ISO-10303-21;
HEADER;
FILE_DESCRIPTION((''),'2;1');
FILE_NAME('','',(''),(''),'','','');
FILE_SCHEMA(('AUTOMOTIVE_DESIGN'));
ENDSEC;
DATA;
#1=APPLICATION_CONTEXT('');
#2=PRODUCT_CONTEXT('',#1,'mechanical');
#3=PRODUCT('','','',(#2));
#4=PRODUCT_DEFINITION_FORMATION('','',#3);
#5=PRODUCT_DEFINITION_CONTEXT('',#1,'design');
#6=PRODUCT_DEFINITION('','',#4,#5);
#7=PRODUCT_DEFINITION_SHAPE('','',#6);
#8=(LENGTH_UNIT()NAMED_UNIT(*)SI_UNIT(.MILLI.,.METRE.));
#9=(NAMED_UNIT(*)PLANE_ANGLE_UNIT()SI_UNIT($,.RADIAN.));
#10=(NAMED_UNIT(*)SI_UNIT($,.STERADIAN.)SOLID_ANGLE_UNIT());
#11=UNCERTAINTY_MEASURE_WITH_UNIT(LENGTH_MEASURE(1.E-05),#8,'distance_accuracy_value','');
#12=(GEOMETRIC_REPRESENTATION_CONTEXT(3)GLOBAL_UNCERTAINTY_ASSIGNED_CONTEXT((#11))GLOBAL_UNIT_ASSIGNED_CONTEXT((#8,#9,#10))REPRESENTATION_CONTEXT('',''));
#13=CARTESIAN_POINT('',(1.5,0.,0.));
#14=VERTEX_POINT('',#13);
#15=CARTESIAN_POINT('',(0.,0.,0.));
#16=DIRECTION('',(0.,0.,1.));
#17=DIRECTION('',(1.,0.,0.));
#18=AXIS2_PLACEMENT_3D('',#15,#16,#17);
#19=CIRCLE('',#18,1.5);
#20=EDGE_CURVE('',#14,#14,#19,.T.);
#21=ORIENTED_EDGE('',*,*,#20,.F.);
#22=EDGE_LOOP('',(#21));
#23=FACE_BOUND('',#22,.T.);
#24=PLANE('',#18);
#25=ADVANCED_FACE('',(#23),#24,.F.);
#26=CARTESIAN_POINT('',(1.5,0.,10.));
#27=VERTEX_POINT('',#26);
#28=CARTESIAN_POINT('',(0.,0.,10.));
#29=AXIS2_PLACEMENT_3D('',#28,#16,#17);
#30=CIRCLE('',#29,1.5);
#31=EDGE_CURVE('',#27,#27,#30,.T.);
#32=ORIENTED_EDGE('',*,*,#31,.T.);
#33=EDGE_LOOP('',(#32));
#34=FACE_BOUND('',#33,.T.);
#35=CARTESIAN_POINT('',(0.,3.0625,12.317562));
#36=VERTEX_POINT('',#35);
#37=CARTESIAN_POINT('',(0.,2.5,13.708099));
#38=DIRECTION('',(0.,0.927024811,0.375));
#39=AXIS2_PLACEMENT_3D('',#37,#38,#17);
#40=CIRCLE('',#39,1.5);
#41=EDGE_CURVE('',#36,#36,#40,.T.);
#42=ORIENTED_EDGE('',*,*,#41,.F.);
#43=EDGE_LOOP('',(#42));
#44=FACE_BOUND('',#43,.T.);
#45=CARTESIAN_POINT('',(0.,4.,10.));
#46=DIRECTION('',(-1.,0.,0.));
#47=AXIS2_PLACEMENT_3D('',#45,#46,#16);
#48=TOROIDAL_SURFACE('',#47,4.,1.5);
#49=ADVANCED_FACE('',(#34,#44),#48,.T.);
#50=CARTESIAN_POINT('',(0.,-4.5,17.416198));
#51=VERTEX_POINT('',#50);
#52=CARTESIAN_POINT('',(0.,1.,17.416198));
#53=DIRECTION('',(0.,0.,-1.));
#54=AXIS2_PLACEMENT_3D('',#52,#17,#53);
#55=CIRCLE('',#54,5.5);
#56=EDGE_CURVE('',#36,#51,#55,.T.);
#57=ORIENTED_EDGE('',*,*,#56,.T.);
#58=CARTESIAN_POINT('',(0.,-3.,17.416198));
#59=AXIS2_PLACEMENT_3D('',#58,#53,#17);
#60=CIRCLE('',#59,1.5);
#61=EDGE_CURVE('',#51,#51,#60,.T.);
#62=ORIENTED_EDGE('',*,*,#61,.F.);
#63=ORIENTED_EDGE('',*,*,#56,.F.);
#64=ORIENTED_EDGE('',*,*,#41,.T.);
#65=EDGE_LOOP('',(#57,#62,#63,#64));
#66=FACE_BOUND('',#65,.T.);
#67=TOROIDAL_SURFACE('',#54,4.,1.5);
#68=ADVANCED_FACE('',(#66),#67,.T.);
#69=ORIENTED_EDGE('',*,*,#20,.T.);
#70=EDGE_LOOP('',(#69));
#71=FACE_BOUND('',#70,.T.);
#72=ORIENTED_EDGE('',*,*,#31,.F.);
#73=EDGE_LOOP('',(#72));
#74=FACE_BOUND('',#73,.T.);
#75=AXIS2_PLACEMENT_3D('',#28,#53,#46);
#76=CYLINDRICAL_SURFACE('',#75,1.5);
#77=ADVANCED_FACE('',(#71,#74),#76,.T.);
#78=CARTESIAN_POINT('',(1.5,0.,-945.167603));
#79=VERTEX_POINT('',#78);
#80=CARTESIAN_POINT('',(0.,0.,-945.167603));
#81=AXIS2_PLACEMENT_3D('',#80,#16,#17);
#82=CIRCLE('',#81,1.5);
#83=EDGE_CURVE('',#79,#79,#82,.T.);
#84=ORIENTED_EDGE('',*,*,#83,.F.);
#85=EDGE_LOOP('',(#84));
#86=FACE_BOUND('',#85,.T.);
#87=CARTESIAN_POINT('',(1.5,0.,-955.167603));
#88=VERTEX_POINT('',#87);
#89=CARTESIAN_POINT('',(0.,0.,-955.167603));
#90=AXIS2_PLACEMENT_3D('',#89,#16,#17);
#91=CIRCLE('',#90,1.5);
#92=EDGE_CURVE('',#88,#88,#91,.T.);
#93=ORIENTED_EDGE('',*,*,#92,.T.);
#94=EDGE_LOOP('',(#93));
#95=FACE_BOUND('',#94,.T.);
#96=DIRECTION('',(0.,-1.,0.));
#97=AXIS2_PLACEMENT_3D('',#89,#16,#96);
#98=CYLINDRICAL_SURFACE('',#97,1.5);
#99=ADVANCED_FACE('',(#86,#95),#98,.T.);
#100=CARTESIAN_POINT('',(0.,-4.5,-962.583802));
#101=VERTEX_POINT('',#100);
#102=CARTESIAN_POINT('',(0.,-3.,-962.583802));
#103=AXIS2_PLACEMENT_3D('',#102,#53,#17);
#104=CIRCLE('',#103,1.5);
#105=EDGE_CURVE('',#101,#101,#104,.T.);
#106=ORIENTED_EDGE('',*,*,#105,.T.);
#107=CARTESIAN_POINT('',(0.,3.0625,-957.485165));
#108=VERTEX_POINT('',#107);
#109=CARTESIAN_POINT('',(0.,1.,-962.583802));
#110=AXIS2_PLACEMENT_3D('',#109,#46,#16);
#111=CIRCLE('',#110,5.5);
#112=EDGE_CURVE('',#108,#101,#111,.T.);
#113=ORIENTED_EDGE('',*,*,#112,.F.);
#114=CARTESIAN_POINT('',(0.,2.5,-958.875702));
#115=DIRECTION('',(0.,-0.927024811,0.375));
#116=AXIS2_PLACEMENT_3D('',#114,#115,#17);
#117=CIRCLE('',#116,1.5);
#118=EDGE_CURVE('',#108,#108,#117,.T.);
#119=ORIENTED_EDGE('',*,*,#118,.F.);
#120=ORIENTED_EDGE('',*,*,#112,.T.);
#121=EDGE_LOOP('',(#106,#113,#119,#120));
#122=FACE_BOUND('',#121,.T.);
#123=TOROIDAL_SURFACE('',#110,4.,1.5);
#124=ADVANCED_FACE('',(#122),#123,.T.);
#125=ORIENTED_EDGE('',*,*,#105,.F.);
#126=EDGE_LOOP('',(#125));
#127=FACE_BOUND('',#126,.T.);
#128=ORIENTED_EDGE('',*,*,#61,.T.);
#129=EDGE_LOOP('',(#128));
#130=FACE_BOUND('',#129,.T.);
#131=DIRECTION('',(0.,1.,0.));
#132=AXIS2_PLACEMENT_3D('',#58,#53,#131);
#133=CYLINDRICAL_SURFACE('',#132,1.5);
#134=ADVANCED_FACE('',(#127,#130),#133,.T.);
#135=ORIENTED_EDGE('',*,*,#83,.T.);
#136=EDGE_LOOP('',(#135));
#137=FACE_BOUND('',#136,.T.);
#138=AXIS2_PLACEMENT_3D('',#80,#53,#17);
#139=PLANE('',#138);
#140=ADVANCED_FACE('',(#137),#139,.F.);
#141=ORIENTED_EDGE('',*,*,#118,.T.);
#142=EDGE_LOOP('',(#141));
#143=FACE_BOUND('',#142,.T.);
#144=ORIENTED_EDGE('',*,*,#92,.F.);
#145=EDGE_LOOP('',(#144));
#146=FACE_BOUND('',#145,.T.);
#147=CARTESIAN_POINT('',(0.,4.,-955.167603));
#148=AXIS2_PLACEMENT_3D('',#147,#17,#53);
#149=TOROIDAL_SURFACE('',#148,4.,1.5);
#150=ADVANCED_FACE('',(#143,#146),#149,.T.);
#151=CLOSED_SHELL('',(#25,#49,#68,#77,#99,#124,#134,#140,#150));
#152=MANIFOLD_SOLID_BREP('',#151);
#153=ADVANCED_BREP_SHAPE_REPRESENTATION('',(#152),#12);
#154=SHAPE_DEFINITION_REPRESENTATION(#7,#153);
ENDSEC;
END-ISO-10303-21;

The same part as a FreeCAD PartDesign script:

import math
import FreeCAD as App
import Part
import Sketcher

V = App.Vector
Q = App.Units.Quantity

doc = App.newDocument("Part")
body = doc.addObject("PartDesign::Body", "Body")

# Sketch on XY plane
sketch1 = body.newObject("Sketcher::SketchObject", "Sketch")
sketch1.AttachmentSupport = (doc.getObject("XY_Plane"), [""])
sketch1.MapMode = "FlatFace"
sketch1.addGeometry(Part.Circle(V(0, 0, 0), V(0, 0, 1), 1.5), False)
sketch1.addConstraint(Sketcher.Constraint("Coincident", 0, 3, -1, 1))
sketch1.addConstraint(Sketcher.Constraint("Diameter", 0, Q("3 mm")))

# Sketch on YZ plane
sketch2 = body.newObject("Sketcher::SketchObject", "Sketch001")
sketch2.AttachmentSupport = (doc.getObject("YZ_Plane"), [""])
sketch2.MapMode = "FlatFace"
sketch2.addGeometry(Part.LineSegment(V(-3, -472.6, 0), V(-3, 17.4, 0)), False)
sketch2.addGeometry(Part.ArcOfCircle(Part.Circle(V(1, 17.4, 0), V(0, 0, 1), 4), math.radians(-68), math.radians(180)), False)
sketch2.addGeometry(Part.ArcOfCircle(Part.Circle(V(4, 10, 0), V(0, 0, 1), 4), math.radians(112), math.radians(180)), False)
sketch2.addGeometry(Part.LineSegment(V(0, 10, 0), V(0, 0, 0)), False)
sketch2.addConstraint(Sketcher.Constraint("Tangent", 0, 2, 1, 2))
sketch2.addConstraint(Sketcher.Constraint("Tangent", 1, 1, 2, 1))
sketch2.addConstraint(Sketcher.Constraint("Tangent", 2, 2, 3, 1))
sketch2.addConstraint(Sketcher.Constraint("Vertical", 0))
sketch2.addConstraint(Sketcher.Constraint("Vertical", 3))
sketch2.addConstraint(Sketcher.Constraint("Coincident", 3, 2, -1, 1))
sketch2.addConstraint(Sketcher.Constraint("Equal", 1, 2))
sketch2.addConstraint(Sketcher.Constraint("Radius", 1, Q("4 mm")))
sketch2.addConstraint(Sketcher.Constraint("DistanceY", 0, 1, 0, 2, Q("490 mm")))
sketch2.addConstraint(Sketcher.Constraint("DistanceY", 3, 2, 3, 1, Q("10 mm")))
sketch2.addConstraint(Sketcher.Constraint("DistanceX", -1, 1, 1, 3, Q("1 mm")))
doc.recompute()

additivepipe = body.newObject("PartDesign::AdditivePipe", "AdditivePipe")
additivepipe.Profile = sketch1
additivepipe.Spine = (sketch2, ["Edge1", "Edge2", "Edge3", "Edge4"])
doc.recompute()

datumplane = body.newObject("PartDesign::Plane", "DatumPlane")
datumplane.AttachmentSupport = (doc.getObject("XY_Plane"), [""])
datumplane.MapMode = "FlatFace"
datumplane.AttachmentOffset = App.Placement(V(0, 0, -472.583802), App.Rotation())
mirrored = body.newObject("PartDesign::Mirrored", "Mirrored")
mirrored.Originals = [additivepipe]
mirrored.MirrorPlane = (datumplane, [""])
body.Tip = mirrored

doc.recompute()
